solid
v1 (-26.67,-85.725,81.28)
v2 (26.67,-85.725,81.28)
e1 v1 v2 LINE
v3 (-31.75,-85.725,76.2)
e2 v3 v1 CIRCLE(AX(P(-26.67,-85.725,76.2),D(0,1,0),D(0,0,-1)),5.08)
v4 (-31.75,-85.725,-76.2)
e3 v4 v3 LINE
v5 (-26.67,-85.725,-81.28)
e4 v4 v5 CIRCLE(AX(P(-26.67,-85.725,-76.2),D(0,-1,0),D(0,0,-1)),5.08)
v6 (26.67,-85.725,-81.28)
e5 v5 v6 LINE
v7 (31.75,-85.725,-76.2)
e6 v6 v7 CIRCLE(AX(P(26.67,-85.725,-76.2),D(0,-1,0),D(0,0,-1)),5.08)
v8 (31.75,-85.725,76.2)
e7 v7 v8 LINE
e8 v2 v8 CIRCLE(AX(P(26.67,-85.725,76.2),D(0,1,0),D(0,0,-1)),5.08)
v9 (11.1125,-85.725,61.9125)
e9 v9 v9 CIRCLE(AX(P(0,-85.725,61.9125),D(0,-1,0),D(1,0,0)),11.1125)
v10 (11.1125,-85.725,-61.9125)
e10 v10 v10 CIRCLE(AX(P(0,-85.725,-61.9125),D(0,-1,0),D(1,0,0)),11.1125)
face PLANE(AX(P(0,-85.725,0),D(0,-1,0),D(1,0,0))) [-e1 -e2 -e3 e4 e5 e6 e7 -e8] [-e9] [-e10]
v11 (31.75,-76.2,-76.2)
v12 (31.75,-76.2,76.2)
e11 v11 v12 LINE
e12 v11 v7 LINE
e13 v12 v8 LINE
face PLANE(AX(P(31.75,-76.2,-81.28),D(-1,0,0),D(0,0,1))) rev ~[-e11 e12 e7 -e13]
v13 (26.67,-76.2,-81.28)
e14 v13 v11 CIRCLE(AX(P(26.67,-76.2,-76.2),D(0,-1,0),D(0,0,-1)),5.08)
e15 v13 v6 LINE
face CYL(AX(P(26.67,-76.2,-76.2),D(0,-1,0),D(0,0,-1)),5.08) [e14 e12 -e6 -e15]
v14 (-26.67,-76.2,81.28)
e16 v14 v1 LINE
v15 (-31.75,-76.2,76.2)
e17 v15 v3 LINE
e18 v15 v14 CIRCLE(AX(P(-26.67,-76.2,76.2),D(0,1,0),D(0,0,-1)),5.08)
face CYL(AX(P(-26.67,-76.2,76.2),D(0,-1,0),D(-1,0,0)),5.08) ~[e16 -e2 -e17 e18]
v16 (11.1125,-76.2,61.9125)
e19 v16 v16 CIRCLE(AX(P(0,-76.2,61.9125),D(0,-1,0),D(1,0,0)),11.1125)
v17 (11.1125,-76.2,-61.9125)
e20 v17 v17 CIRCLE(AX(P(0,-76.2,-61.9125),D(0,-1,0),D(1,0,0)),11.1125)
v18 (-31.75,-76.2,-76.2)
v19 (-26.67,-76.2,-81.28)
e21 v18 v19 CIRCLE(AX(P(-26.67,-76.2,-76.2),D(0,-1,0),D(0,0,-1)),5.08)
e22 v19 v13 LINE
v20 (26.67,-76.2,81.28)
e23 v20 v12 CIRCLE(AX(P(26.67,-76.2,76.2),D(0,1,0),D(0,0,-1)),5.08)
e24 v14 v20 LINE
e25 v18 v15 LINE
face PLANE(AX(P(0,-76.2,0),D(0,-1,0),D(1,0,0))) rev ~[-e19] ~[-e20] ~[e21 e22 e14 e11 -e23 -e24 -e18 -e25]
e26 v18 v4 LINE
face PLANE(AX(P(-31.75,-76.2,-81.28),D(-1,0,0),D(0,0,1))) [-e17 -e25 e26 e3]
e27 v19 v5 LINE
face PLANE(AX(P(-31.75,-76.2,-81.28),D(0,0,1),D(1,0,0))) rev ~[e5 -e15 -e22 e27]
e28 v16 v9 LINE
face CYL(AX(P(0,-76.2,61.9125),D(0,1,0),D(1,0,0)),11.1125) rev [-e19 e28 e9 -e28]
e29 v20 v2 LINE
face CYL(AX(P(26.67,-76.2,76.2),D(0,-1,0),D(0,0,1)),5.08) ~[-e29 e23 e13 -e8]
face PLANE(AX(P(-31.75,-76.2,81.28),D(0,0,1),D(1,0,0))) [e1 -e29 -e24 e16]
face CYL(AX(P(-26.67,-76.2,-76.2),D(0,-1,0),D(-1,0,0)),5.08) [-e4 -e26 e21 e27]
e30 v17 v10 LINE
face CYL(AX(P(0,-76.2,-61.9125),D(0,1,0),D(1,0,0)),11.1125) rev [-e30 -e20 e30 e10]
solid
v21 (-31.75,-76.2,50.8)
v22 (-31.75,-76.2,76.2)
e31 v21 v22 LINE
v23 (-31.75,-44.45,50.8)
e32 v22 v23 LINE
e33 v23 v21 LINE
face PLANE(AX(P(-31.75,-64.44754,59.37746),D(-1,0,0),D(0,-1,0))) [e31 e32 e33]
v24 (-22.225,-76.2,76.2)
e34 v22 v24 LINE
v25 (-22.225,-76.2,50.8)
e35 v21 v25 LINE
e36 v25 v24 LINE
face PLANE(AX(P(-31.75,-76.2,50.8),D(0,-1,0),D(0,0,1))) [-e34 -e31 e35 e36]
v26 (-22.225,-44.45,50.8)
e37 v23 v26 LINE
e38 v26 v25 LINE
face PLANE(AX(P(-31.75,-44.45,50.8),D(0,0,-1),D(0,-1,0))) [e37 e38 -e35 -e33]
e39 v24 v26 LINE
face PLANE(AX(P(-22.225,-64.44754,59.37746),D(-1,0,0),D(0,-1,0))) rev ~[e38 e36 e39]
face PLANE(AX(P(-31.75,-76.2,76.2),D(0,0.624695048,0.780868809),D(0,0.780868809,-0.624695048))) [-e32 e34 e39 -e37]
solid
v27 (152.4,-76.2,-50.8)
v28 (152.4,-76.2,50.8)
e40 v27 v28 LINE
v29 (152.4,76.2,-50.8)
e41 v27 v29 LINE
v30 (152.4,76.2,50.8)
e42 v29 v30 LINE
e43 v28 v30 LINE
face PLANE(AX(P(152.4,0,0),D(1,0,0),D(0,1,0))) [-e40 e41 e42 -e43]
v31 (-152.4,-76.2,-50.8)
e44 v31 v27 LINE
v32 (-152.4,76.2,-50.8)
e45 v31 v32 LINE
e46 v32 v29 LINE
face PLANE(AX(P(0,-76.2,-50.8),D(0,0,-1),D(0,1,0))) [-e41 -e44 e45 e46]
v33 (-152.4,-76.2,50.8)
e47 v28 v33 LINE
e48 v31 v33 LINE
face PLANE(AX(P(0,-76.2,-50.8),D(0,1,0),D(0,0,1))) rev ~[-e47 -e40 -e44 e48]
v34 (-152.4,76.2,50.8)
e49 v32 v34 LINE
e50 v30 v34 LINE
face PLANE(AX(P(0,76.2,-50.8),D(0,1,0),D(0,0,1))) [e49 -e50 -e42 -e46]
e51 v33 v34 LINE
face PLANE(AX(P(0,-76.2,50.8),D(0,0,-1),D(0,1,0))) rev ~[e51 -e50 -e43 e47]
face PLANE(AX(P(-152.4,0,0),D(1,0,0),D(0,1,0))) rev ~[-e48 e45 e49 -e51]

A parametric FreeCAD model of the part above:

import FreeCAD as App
import Part
import Sketcher
Q = App.Units.Quantity


def edges_at(feature, points):
    """Names of the edges that pass closest to the given points."""
    edges = feature.Shape.Edges
    near = lambda p: min(range(len(edges)), key=lambda i: edges[i].distToShape(Part.Vertex(*p))[0])
    return sorted({f"Edge{near(p) + 1}" for p in points})

doc = App.newDocument("Part")
params = doc.addObject("Spreadsheet::Sheet", "Params")
for row, (alias, value) in enumerate([
    ("sketch1_width", "6 in"),
    ("sketch1_height", "4 in"),
    ("pad1_length", "12 in"),
    ("sketch2_diameter", "0.875 in"),
    ("sketch2_width", "2.5 in"),
    ("sketch2_height", "6.4 in"),
    ("pad2_length", "0.375 in"),
    ("fillet_radius", "0.2 in"),
    ("sketch3_height", "1 in"),
    ("sketch3_width", "1.25 in"),
    ("pad3_length", "0.375 in"),
], start=1):
    params.set(f"A{row}", alias)
    params.set(f"B{row}", "=" + value)
    params.setAlias(f"B{row}", alias)

body = doc.addObject("PartDesign::Body", "Body")

sketch1 = doc.addObject("Sketcher::SketchObject", "Sketch")
body.addObject(sketch1)
sketch1.AttachmentSupport = (doc.YZ_Plane, [""])
sketch1.MapMode = "FlatFace"
sketch1.addGeometry(Part.LineSegment(App.Vector(-76, 51, 0), App.Vector(-76, -51, 0)), False)
sketch1.addGeometry(Part.LineSegment(App.Vector(-76, -51, 0), App.Vector(76, -51, 0)), False)
sketch1.addGeometry(Part.LineSegment(App.Vector(76, -51, 0), App.Vector(76, 51, 0)), False)
sketch1.addGeometry(Part.LineSegment(App.Vector(76, 51, 0), App.Vector(-76, 51, 0)), False)
sketch1.addConstraint(Sketcher.Constraint("Coincident", 0, 2, 1, 1))
sketch1.addConstraint(Sketcher.Constraint("Coincident", 1, 2, 2, 1))
sketch1.addConstraint(Sketcher.Constraint("Coincident", 2, 2, 3, 1))
sketch1.addConstraint(Sketcher.Constraint("Coincident", 3, 2, 0, 1))
sketch1.addConstraint(Sketcher.Constraint("Vertical", 0))
sketch1.addConstraint(Sketcher.Constraint("Horizontal", 1))
sketch1.addConstraint(Sketcher.Constraint("Vertical", 2))
sketch1.addConstraint(Sketcher.Constraint("Horizontal", 3))
sketch1.addConstraint(Sketcher.Constraint("Symmetric", 0, 2, 2, 2, -1, 1))
sketch1.addConstraint(Sketcher.Constraint("DistanceX", 1, 1, 1, 2, Q("6 in")))
sketch1.addConstraint(Sketcher.Constraint("DistanceY", 0, 2, 0, 1, Q("4 in")))
sketch1.setExpression("Constraints[9]", "Params.sketch1_width")
sketch1.setExpression("Constraints[10]", "Params.sketch1_height")
pad1 = doc.addObject("PartDesign::Pad", "Pad")
body.addObject(pad1)
pad1.Profile = sketch1
pad1.setExpression("Length", "Params.pad1_length")
pad1.Midplane = True
body2 = doc.addObject("PartDesign::Body", "Body001")

sketch2 = doc.addObject("Sketcher::SketchObject", "Sketch001")
body2.addObject(sketch2)
sketch2.AttachmentSupport = (doc.getObject("XZ_Plane001"), [""])
sketch2.MapMode = "FlatFace"
sketch2.AttachmentOffset = App.Placement(App.Vector(0, 0, 3 * 25.4), App.Rotation())
sketch2.addGeometry(Part.LineSegment(App.Vector(-32, 81, 0), App.Vector(-32, -81, 0)), False)
sketch2.addGeometry(Part.LineSegment(App.Vector(-32, -81, 0), App.Vector(32, -81, 0)), False)
sketch2.addGeometry(Part.LineSegment(App.Vector(32, -81, 0), App.Vector(32, 81, 0)), False)
sketch2.addGeometry(Part.LineSegment(App.Vector(32, 81, 0), App.Vector(-32, 81, 0)), False)
sketch2.addGeometry(Part.Circle(App.Vector(0, -62, 0), App.Vector(0, 0, 1), 11), False)
sketch2.addGeometry(Part.Circle(App.Vector(0, 62, 0), App.Vector(0, 0, 1), 11), False)
sketch2.addConstraint(Sketcher.Constraint("Coincident", 0, 2, 1, 1))
sketch2.addConstraint(Sketcher.Constraint("Coincident", 1, 2, 2, 1))
sketch2.addConstraint(Sketcher.Constraint("Coincident", 2, 2, 3, 1))
sketch2.addConstraint(Sketcher.Constraint("Coincident", 3, 2, 0, 1))
sketch2.addConstraint(Sketcher.Constraint("Vertical", 0))
sketch2.addConstraint(Sketcher.Constraint("Horizontal", 1))
sketch2.addConstraint(Sketcher.Constraint("Vertical", 2))
sketch2.addConstraint(Sketcher.Constraint("Horizontal", 3))
sketch2.addConstraint(Sketcher.Constraint("Equal", 4, 5))
sketch2.addConstraint(Sketcher.Constraint("Symmetric", 4, 3, 5, 3, -1, 1))
sketch2.addConstraint(Sketcher.Constraint("Symmetric", 0, 2, 2, 2, -1, 1))
sketch2.addConstraint(Sketcher.Constraint("PointOnObject", 4, 3, -2))
sketch2.addConstraint(Sketcher.Constraint("Diameter", 4, Q("0.875 in")))
sketch2.addConstraint(Sketcher.Constraint("DistanceX", 1, 1, 1, 2, Q("2.5 in")))
sketch2.addConstraint(Sketcher.Constraint("DistanceY", 0, 2, 0, 1, Q("6.4 in")))
sketch2.addConstraint(Sketcher.Constraint("DistanceY", 4, 3, -1, 1, Q("2.4375 in")))
sketch2.setExpression("Constraints[12]", "Params.sketch2_diameter")
sketch2.setExpression("Constraints[13]", "Params.sketch2_width")
sketch2.setExpression("Constraints[14]", "Params.sketch2_height")
pad2 = doc.addObject("PartDesign::Pad", "Pad001")
body2.addObject(pad2)
pad2.Profile = sketch2
pad2.setExpression("Length", "Params.pad2_length")
doc.recompute()

fillet = doc.addObject("PartDesign::Fillet", "Fillet")
body2.addObject(fillet)
fillet.Base = (pad2, edges_at(pad2, [
    (-31.75, -80.963, 81.28),
    (31.75, -80.963, 81.28),
    (-31.75, -80.963, -81.28),
    (31.75, -80.963, -81.28),
]))
fillet.setExpression("Radius", "Params.fillet_radius")
body3 = doc.addObject("PartDesign::Body", "Body002")

sketch3 = doc.addObject("Sketcher::SketchObject", "Sketch002")
body3.addObject(sketch3)
sketch3.AttachmentSupport = (doc.getObject("YZ_Plane002"), [""])
sketch3.MapMode = "FlatFace"
sketch3.AttachmentOffset = App.Placement(App.Vector(0, 0, -1.25 * 25.4), App.Rotation())
sketch3.addGeometry(Part.LineSegment(App.Vector(-44, 51, 0), App.Vector(-76, 51, 0)), False)
sketch3.addGeometry(Part.LineSegment(App.Vector(-76, 51, 0), App.Vector(-76, 76, 0)), False)
sketch3.addGeometry(Part.LineSegment(App.Vector(-76, 76, 0), App.Vector(-44, 51, 0)), False)
sketch3.addConstraint(Sketcher.Constraint("Coincident", 0, 2, 1, 1))
sketch3.addConstraint(Sketcher.Constraint("Coincident", 1, 2, 2, 1))
sketch3.addConstraint(Sketcher.Constraint("Coincident", 2, 2, 0, 1))
sketch3.addConstraint(Sketcher.Constraint("Horizontal", 0))
sketch3.addConstraint(Sketcher.Constraint("Vertical", 1))
sketch3.addConstraint(Sketcher.Constraint("DistanceY", 1, 1, 1, 2, Q("1 in")))
sketch3.addConstraint(Sketcher.Constraint("DistanceX", 0, 2, -1, 1, Q("3 in")))
sketch3.addConstraint(Sketcher.Constraint("DistanceY", -1, 1, 0, 2, Q("2 in")))
sketch3.addConstraint(Sketcher.Constraint("DistanceX", 0, 2, 0, 1, Q("1.25 in")))
sketch3.setExpression("Constraints[5]", "Params.sketch3_height")
sketch3.setExpression("Constraints[8]", "Params.sketch3_width")
pad3 = doc.addObject("PartDesign::Pad", "Pad002")
body3.addObject(pad3)
pad3.Profile = sketch3
pad3.setExpression("Length", "Params.pad3_length")

doc.recompute()
